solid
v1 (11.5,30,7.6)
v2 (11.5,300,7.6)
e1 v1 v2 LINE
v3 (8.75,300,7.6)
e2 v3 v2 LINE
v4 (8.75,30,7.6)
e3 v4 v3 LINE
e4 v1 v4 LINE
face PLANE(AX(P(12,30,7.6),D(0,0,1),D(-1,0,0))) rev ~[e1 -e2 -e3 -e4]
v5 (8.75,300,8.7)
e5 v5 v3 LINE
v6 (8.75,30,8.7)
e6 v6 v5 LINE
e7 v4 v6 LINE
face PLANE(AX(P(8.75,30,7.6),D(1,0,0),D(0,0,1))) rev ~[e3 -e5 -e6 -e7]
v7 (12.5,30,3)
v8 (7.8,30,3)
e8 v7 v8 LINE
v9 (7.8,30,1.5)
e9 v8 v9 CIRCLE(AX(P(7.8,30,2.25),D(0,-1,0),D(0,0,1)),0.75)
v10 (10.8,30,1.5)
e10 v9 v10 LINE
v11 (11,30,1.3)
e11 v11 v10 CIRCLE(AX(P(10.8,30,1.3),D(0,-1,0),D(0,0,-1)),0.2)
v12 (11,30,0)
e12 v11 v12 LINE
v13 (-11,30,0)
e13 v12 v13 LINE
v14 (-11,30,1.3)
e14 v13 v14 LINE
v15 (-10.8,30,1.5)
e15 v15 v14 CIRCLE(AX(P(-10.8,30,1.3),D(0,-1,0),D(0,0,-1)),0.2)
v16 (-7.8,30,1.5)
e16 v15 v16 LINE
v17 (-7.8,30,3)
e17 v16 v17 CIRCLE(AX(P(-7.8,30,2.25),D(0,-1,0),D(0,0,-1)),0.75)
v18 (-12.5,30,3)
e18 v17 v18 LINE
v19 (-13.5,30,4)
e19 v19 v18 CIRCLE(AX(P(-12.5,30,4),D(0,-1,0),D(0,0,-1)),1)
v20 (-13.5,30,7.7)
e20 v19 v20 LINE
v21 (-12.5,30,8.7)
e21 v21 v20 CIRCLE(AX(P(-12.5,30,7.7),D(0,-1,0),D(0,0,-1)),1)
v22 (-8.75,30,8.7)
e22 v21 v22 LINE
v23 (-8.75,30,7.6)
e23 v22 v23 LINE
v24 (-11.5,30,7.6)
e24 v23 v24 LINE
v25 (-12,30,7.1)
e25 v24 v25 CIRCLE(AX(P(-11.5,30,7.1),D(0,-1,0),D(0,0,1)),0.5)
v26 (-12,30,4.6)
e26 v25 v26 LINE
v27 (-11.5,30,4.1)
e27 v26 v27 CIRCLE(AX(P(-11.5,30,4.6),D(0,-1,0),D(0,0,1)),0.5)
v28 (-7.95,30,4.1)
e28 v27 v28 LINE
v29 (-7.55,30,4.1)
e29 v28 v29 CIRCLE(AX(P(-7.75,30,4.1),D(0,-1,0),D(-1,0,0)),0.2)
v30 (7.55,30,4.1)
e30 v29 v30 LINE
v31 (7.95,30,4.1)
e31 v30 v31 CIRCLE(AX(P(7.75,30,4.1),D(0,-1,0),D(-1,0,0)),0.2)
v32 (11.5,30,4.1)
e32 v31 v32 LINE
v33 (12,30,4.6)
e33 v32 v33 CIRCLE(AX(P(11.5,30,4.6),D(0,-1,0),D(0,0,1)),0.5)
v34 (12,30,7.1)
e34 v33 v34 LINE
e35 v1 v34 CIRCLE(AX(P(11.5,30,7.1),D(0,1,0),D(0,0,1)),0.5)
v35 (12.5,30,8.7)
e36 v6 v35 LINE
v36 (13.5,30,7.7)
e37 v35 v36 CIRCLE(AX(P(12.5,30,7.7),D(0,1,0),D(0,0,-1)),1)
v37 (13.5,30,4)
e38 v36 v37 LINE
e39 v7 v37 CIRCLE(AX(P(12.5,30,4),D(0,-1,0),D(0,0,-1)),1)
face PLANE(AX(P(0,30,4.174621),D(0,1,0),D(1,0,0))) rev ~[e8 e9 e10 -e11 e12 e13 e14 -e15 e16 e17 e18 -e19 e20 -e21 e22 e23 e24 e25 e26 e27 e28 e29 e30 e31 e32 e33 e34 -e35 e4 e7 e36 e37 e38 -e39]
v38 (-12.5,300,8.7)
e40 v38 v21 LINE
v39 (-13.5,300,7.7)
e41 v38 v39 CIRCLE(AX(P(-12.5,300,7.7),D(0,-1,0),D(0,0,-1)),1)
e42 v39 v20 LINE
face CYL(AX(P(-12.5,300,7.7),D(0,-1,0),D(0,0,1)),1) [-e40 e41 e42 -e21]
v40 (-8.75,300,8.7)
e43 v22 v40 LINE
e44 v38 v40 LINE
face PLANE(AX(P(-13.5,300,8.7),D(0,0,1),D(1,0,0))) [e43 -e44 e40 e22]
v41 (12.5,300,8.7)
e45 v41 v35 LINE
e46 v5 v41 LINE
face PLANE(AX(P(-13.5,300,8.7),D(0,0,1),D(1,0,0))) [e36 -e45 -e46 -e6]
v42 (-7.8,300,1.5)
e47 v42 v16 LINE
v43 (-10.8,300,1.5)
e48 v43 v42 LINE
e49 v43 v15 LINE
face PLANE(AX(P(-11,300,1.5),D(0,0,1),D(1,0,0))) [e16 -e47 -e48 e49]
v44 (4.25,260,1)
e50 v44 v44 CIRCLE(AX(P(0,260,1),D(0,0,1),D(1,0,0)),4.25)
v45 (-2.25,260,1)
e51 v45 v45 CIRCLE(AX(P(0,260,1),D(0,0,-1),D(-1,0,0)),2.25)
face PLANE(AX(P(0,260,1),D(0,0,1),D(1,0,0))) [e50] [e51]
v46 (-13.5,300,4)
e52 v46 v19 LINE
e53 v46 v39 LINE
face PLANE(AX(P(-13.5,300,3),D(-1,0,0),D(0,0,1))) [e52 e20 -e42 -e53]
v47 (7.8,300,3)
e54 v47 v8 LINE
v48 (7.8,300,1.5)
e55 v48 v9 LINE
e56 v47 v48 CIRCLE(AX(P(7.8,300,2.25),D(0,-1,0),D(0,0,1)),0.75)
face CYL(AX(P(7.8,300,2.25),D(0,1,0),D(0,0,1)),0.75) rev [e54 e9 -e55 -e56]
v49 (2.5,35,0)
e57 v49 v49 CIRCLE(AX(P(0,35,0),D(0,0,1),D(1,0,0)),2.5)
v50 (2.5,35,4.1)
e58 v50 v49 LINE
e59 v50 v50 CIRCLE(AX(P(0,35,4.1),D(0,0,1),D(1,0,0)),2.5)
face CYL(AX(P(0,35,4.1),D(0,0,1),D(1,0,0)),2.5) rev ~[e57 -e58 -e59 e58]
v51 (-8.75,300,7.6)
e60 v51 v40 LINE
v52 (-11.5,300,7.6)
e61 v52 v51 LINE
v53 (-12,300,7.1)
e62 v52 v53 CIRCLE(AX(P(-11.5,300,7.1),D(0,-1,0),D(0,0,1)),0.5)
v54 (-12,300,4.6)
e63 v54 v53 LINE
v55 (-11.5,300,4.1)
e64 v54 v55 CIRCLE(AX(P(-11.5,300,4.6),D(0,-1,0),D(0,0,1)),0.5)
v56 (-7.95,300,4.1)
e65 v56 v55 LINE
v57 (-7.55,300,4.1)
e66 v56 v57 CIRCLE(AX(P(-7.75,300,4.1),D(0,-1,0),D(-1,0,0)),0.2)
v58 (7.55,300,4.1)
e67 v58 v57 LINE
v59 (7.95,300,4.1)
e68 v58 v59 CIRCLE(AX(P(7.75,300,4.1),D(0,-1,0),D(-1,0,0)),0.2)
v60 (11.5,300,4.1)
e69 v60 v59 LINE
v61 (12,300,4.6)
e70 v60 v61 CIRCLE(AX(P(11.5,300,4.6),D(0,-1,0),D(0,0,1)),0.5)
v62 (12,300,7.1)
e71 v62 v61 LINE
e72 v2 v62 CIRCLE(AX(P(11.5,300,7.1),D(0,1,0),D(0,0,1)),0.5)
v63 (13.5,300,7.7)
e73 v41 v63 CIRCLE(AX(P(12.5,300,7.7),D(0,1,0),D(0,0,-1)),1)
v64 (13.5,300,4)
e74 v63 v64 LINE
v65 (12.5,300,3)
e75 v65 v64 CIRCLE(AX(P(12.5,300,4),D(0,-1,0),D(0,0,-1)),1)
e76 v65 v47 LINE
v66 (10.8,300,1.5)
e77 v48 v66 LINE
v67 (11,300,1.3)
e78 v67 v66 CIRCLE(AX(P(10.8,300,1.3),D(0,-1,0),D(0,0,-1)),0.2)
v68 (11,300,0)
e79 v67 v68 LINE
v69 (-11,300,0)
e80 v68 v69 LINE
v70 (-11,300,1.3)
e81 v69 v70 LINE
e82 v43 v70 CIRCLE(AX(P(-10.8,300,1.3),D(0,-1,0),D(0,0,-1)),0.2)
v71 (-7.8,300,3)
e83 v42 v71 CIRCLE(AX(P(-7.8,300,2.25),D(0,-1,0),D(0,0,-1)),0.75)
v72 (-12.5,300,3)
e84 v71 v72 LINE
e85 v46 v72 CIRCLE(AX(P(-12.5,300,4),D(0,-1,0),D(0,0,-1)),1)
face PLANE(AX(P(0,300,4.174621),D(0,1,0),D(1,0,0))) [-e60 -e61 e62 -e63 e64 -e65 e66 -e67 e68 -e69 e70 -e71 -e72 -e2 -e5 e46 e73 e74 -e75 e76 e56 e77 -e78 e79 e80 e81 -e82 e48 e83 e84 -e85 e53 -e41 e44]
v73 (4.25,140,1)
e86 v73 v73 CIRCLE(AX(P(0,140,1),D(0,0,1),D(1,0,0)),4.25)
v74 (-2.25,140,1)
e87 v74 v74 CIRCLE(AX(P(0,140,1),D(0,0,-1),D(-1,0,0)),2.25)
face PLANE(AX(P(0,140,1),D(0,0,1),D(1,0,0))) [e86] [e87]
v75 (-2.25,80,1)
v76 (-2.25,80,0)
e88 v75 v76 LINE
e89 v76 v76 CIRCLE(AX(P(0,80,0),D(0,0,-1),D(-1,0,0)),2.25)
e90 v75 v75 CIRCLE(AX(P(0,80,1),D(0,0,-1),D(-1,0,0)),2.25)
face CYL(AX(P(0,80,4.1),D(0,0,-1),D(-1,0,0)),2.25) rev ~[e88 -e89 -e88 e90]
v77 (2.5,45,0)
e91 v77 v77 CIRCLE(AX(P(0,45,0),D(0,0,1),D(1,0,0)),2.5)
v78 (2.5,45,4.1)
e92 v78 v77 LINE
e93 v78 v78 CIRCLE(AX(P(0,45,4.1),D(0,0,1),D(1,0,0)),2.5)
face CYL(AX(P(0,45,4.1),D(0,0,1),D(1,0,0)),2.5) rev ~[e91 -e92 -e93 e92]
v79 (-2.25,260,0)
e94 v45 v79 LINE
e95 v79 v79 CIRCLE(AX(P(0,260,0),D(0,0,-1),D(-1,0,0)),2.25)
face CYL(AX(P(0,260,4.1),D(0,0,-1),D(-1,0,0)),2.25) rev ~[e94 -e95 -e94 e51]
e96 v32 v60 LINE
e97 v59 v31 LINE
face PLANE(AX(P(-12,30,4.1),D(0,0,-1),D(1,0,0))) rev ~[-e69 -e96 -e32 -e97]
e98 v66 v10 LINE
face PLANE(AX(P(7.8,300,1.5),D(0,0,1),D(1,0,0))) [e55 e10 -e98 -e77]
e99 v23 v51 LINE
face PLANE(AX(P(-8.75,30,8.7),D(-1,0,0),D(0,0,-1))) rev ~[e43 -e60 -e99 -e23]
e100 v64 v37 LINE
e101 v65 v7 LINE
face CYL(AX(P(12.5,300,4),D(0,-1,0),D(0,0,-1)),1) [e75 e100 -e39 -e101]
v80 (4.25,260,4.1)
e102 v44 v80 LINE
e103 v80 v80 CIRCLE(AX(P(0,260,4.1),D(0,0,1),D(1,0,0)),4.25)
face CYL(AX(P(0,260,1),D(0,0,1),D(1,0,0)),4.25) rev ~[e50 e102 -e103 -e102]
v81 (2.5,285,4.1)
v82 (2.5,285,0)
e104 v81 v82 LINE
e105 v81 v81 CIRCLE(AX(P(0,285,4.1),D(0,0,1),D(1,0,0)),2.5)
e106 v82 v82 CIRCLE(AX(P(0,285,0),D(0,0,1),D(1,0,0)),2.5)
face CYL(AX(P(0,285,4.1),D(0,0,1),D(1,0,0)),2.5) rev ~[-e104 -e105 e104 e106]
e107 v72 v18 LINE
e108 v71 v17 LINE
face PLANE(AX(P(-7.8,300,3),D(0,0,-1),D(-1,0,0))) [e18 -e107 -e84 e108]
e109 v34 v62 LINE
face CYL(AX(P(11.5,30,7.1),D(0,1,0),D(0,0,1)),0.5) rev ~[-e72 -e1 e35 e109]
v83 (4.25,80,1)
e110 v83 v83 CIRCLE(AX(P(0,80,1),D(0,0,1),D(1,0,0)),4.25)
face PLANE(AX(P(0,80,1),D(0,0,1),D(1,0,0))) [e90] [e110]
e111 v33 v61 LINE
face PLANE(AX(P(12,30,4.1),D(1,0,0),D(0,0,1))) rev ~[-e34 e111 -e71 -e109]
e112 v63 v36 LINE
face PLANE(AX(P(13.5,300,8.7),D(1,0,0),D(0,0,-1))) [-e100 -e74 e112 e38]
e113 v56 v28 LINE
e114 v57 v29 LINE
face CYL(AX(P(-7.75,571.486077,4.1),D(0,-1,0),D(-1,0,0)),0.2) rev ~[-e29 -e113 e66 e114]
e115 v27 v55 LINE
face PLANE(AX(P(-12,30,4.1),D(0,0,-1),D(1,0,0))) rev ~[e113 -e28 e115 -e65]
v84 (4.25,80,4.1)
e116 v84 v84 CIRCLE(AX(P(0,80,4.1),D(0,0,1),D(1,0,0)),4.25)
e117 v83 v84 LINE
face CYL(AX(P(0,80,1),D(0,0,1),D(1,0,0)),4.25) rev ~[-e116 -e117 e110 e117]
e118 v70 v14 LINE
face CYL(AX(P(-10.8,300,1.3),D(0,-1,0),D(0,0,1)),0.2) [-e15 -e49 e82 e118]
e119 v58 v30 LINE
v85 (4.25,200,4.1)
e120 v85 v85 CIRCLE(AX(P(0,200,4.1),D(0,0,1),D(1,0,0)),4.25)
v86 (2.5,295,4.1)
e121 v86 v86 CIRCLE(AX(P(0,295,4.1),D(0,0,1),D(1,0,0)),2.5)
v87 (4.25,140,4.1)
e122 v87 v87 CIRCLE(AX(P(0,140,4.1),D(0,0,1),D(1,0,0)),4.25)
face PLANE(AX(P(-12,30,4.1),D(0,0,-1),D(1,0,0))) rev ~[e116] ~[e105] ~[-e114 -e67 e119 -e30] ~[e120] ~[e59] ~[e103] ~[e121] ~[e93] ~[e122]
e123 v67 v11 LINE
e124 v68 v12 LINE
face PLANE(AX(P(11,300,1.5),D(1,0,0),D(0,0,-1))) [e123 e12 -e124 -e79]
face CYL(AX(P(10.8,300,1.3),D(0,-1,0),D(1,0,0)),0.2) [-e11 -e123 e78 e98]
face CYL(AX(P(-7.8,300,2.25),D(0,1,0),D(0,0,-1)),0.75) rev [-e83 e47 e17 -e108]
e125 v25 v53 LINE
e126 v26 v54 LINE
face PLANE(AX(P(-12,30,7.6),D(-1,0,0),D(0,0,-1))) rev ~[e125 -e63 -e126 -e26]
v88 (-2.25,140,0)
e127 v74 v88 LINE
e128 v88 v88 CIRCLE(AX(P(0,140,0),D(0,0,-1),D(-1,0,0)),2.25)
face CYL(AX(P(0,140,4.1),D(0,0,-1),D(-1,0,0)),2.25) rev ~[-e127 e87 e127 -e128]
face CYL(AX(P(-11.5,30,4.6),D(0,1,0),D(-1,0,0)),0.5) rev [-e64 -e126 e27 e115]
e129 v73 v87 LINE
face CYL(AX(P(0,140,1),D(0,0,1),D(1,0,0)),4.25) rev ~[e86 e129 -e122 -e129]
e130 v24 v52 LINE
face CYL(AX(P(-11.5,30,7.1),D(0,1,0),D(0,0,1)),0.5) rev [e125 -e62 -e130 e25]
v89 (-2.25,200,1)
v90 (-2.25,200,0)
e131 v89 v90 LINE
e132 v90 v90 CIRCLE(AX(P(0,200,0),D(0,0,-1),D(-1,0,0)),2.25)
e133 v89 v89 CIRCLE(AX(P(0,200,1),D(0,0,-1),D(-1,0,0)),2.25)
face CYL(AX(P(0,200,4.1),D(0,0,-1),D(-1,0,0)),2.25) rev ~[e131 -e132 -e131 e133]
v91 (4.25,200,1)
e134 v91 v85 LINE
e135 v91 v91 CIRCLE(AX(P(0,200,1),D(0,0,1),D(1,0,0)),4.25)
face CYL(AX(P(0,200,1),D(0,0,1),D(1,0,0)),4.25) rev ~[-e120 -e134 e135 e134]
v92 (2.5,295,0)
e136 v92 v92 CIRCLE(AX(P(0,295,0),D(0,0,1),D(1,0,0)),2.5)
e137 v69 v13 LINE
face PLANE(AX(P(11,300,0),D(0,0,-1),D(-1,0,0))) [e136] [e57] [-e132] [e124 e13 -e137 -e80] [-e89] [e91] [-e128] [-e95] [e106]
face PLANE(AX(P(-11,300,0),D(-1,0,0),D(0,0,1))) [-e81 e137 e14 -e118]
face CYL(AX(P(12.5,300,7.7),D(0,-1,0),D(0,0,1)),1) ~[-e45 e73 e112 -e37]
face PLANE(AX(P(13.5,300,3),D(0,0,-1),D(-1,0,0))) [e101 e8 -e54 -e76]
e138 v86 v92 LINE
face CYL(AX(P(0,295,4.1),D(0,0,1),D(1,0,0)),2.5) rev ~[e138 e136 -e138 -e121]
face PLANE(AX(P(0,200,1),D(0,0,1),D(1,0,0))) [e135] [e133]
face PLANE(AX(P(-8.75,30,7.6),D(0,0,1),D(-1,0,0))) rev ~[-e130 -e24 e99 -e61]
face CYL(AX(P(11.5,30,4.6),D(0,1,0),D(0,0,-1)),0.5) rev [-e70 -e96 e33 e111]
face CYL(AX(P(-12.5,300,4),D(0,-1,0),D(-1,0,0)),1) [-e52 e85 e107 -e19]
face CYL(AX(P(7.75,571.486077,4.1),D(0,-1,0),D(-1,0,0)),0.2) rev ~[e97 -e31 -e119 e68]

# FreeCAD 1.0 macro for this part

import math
import FreeCAD as App
import Part
import Sketcher

V = App.Vector
Q = App.Units.Quantity


def edges_at(feature, points):
    """Names of the edges that pass closest to the given points."""
    edges = feature.Shape.Edges
    near = lambda p: min(range(len(edges)), key=lambda i: edges[i].distToShape(Part.Vertex(*p))[0])
    return sorted({f"Edge{near(p) + 1}" for p in points})

doc = App.newDocument("Part")
body = doc.addObject("PartDesign::Body", "Body")

sketch1 = body.newObject("Sketcher::SketchObject", "Sketch")
sketch1.AttachmentSupport = (doc.getObject("XZ_Plane"), [""])
sketch1.MapMode = "FlatFace"
sketch1.AttachmentOffset = App.Placement(V(0, 0, -300), App.Rotation())
sketch1.addGeometry([
    Part.LineSegment(V(-13.5, 3, 0), V(-13.5, 8.7, 0)),
    Part.LineSegment(V(-13.5, 8.7, 0), V(13.5, 8.7, 0)),
    Part.LineSegment(V(13.5, 8.7, 0), V(13.5, 3, 0)),
    Part.LineSegment(V(13.5, 3, 0), V(7.8, 3, 0)),
    Part.ArcOfCircle(Part.Circle(V(7.8, 2.2, 0), V(0, 0, 1), 0.8), math.radians(90), math.radians(270)),
    Part.LineSegment(V(7.8, 1.5, 0), V(11, 1.5, 0)),
    Part.LineSegment(V(11, 1.5, 0), V(11, 0, 0)),
    Part.LineSegment(V(11, 0, 0), V(-11, 0, 0)),
    Part.LineSegment(V(-11, 0, 0), V(-11, 1.5, 0)),
    Part.LineSegment(V(-11, 1.5, 0), V(-7.8, 1.5, 0)),
    Part.ArcOfCircle(Part.Circle(V(-7.8, 2.2, 0), V(0, 0, 1), 0.8), math.radians(-90), math.radians(90)),
    Part.LineSegment(V(-7.8, 3, 0), V(-13.5, 3, 0)),
], False)
sketch1.addConstraint([
    Sketcher.Constraint("Coincident", 0, 2, 1, 1),
    Sketcher.Constraint("Coincident", 1, 2, 2, 1),
    Sketcher.Constraint("Coincident", 2, 2, 3, 1),
    Sketcher.Constraint("Tangent", 3, 2, 4, 1),
    Sketcher.Constraint("Tangent", 4, 2, 5, 1),
    Sketcher.Constraint("Coincident", 5, 2, 6, 1),
    Sketcher.Constraint("Coincident", 6, 2, 7, 1),
    Sketcher.Constraint("Coincident", 7, 2, 8, 1),
    Sketcher.Constraint("Coincident", 8, 2, 9, 1),
    Sketcher.Constraint("Tangent", 9, 2, 10, 1),
    Sketcher.Constraint("Tangent", 10, 2, 11, 1),
    Sketcher.Constraint("Coincident", 11, 2, 0, 1),
    Sketcher.Constraint("Vertical", 0),
    Sketcher.Constraint("Horizontal", 1),
    Sketcher.Constraint("Vertical", 2),
    Sketcher.Constraint("Horizontal", 3),
    Sketcher.Constraint("Horizontal", 5),
    Sketcher.Constraint("Vertical", 6),
    Sketcher.Constraint("Horizontal", 7),
    Sketcher.Constraint("Vertical", 8),
    Sketcher.Constraint("Horizontal", 9),
    Sketcher.Constraint("Horizontal", 11),
    Sketcher.Constraint("Equal", 4, 10),
    Sketcher.Constraint("Symmetric", 6, 2, 7, 2, -1, 1),
    Sketcher.Constraint("Symmetric", 4, 3, 10, 3, -2),
    Sketcher.Constraint("Equal", 3, 11),
    Sketcher.Constraint("Equal", 11, 0),
    Sketcher.Constraint("DistanceX", 1, 1, 1, 2, Q("27 mm")),
    Sketcher.Constraint("DistanceX", 7, 2, 7, 1, Q("22 mm")),
    Sketcher.Constraint("Radius", 4, Q("0.75 mm")),
    Sketcher.Constraint("DistanceX", 3, 2, 3, 1, Q("5.7 mm")),
    Sketcher.Constraint("DistanceY", 6, 2, 6, 1, Q("1.5 mm")),
])
pad1 = body.newObject("PartDesign::Pad", "Pad")
pad1.Profile = sketch1
pad1.Length = 270

sketch2 = body.newObject("Sketcher::SketchObject", "Sketch001")
sketch2.AttachmentSupport = (doc.getObject("XZ_Plane"), [""])
sketch2.MapMode = "FlatFace"
sketch2.AttachmentOffset = App.Placement(V(0, 0, -30), App.Rotation())
sketch2.addGeometry([
    Part.LineSegment(V(8.8, 8.7, 0), V(-8.8, 8.7, 0)),
    Part.LineSegment(V(-8.8, 8.7, 0), V(-8.8, 7.6, 0)),
    Part.LineSegment(V(-8.8, 7.6, 0), V(-12, 7.6, 0)),
    Part.LineSegment(V(-12, 7.6, 0), V(-12, 4.1, 0)),
    Part.LineSegment(V(-12, 4.1, 0), V(12, 4.1, 0)),
    Part.LineSegment(V(12, 4.1, 0), V(12, 7.6, 0)),
    Part.LineSegment(V(12, 7.6, 0), V(8.8, 7.6, 0)),
    Part.LineSegment(V(8.8, 7.6, 0), V(8.8, 8.7, 0)),
], False)
sketch2.addConstraint([
    Sketcher.Constraint("Coincident", 0, 2, 1, 1),
    Sketcher.Constraint("Coincident", 1, 2, 2, 1),
    Sketcher.Constraint("Coincident", 2, 2, 3, 1),
    Sketcher.Constraint("Coincident", 3, 2, 4, 1),
    Sketcher.Constraint("Coincident", 4, 2, 5, 1),
    Sketcher.Constraint("Coincident", 5, 2, 6, 1),
    Sketcher.Constraint("Coincident", 6, 2, 7, 1),
    Sketcher.Constraint("Coincident", 7, 2, 0, 1),
    Sketcher.Constraint("Horizontal", 0),
    Sketcher.Constraint("Vertical", 1),
    Sketcher.Constraint("Horizontal", 2),
    Sketcher.Constraint("Vertical", 3),
    Sketcher.Constraint("Horizontal", 4),
    Sketcher.Constraint("Vertical", 5),
    Sketcher.Constraint("Horizontal", 6),
    Sketcher.Constraint("Vertical", 7),
    Sketcher.Constraint("Symmetric", 2, 2, 5, 2, -2),
    Sketcher.Constraint("Equal", 2, 6),
    Sketcher.Constraint("DistanceX", 4, 1, 4, 2, Q("24 mm")),
    Sketcher.Constraint("DistanceX", 0, 2, 0, 1, Q("17.5 mm")),
    Sketcher.Constraint("DistanceY", 1, 2, 1, 1, Q("1.1 mm")),
    Sketcher.Constraint("DistanceY", 3, 2, 3, 1, Q("3.5 mm")),
    Sketcher.Constraint("DistanceY", -1, 1, 0, 2, Q("8.7 mm")),
])
pocket1 = body.newObject("PartDesign::Pocket", "Pocket")
pocket1.Profile = sketch2
pocket1.Type = "ThroughAll"

sketch3 = body.newObject("Sketcher::SketchObject", "Sketch002")
sketch3.AttachmentSupport = (doc.getObject("XZ_Plane"), [""])
sketch3.MapMode = "FlatFace"
sketch3.AttachmentOffset = App.Placement(V(0, 0, -300), App.Rotation())
sketch3.addGeometry([
    Part.Circle(V(-7.75, 4.1, 0), V(0, 0, 1), 0.2),
    Part.Circle(V(7.75, 4.1, 0), V(0, 0, 1), 0.2),
], False)
sketch3.addConstraint([
    Sketcher.Constraint("Equal", 0, 1),
    Sketcher.Constraint("Symmetric", 0, 3, 1, 3, -2),
    Sketcher.Constraint("Diameter", 0, Q("0.4 mm")),
    Sketcher.Constraint("DistanceY", -1, 1, 0, 3, Q("4.1 mm")),
    Sketcher.Constraint("DistanceX", 0, 3, 1, 3, Q("15.5 mm")),
])
doc.recompute()
hole = body.newObject("PartDesign::Hole", "Hole")
hole.Profile = sketch3
hole.ThreadType = "None"
hole.Diameter = 0.4
hole.DepthType = "ThroughAll"
hole.Reversed = True

sketch4 = body.newObject("Sketcher::SketchObject", "Sketch003")
sketch4.AttachmentSupport = (doc.getObject("XY_Plane"), [""])
sketch4.MapMode = "FlatFace"
sketch4.AttachmentOffset = App.Placement(V(0, 0, 4.1), App.Rotation())
sketch4.addGeometry([
    Part.Circle(V(0, 260, 0), V(0, 0, 1), 2.2),
    Part.Circle(V(0, 200, 0), V(0, 0, 1), 2.2),
    Part.Circle(V(0, 140, 0), V(0, 0, 1), 2.2),
    Part.Circle(V(0, 80, 0), V(0, 0, 1), 2.2),
    Part.Circle(V(0, 20, 0), V(0, 0, 1), 2.2),
], False)
sketch4.addConstraint([
    Sketcher.Constraint("Equal", 0, 1),
    Sketcher.Constraint("Equal", 1, 2),
    Sketcher.Constraint("Equal", 2, 3),
    Sketcher.Constraint("Equal", 3, 4),
    Sketcher.Constraint("PointOnObject", 0, 3, -2),
    Sketcher.Constraint("PointOnObject", 1, 3, -2),
    Sketcher.Constraint("PointOnObject", 2, 3, -2),
    Sketcher.Constraint("PointOnObject", 3, 3, -2),
    Sketcher.Constraint("PointOnObject", 4, 3, -2),
    Sketcher.Constraint("Diameter", 0, Q("4.5 mm")),
    Sketcher.Constraint("DistanceY", -1, 1, 0, 3, Q("260 mm")),
    Sketcher.Constraint("DistanceY", -1, 1, 1, 3, Q("200 mm")),
    Sketcher.Constraint("DistanceY", -1, 1, 2, 3, Q("140 mm")),
    Sketcher.Constraint("DistanceY", -1, 1, 3, 3, Q("80 mm")),
    Sketcher.Constraint("DistanceY", -1, 1, 4, 3, Q("20 mm")),
])
doc.recompute()
hole2 = body.newObject("PartDesign::Hole", "Hole001")
hole2.Profile = sketch4
hole2.ThreadType = "None"
hole2.Diameter = 4.5
hole2.DepthType = "Dimension"
hole2.Depth = 4.1
hole2.DrillPoint = "Flat"
hole2.HoleCutType = "Counterbore"
hole2.HoleCutDiameter = 8.5
hole2.HoleCutDepth = 3.1
doc.recompute()

fillet = body.newObject("PartDesign::Fillet", "Fillet")
fillet.Base = (hole2, edges_at(hole2, [(-11, 165, 1.5), (11, 165, 1.5)]))
fillet.Radius = 0.2
doc.recompute()

fillet2 = body.newObject("PartDesign::Fillet", "Fillet001")
fillet2.Base = (fillet, edges_at(fillet, [
    (12, 165, 7.6),
    (12, 165, 4.1),
    (-12, 165, 4.1),
    (-12, 165, 7.6),
]))
fillet2.Radius = 0.5
doc.recompute()

fillet3 = body.newObject("PartDesign::Fillet", "Fillet002")
fillet3.Base = (fillet2, edges_at(fillet2, [
    (13.5, 165, 3),
    (13.5, 165, 8.7),
    (-13.5, 165, 8.7),
    (-13.5, 165, 3),
]))
fillet3.Radius = 1

sketch5 = body.newObject("Sketcher::SketchObject", "Sketch004")
sketch5.AttachmentSupport = (doc.getObject("XY_Plane"), [""])
sketch5.MapMode = "FlatFace"
sketch5.AttachmentOffset = App.Placement(V(0, 0, 4.1), App.Rotation())
sketch5.addGeometry(Part.Circle(V(0, 285, 0), V(0, 0, 1), 2.5), False)
sketch5.addConstraint([
    Sketcher.Constraint("PointOnObject", 0, 3, -2),
    Sketcher.Constraint("Diameter", 0, Q("5 mm")),
    Sketcher.Constraint("DistanceY", -1, 1, 0, 3, Q("285 mm")),
])
pocket2 = body.newObject("PartDesign::Pocket", "Pocket001")
pocket2.Profile = sketch5
pocket2.Type = "UpToFirst"

sketch6 = body.newObject("Sketcher::SketchObject", "Sketch005")
sketch6.AttachmentSupport = (doc.getObject("XY_Plane"), [""])
sketch6.MapMode = "FlatFace"
sketch6.AttachmentOffset = App.Placement(V(0, 0, 4.1), App.Rotation())
sketch6.addGeometry(Part.Circle(V(0, 45, 0), V(0, 0, 1), 2.5), False)
sketch6.addConstraint([
    Sketcher.Constraint("PointOnObject", 0, 3, -2),
    Sketcher.Constraint("Diameter", 0, Q("5 mm")),
    Sketcher.Constraint("DistanceY", -1, 1, 0, 3, Q("45 mm")),
])
pocket3 = body.newObject("PartDesign::Pocket", "Pocket002")
pocket3.Profile = sketch6
pocket3.Type = "UpToFirst"

sketch7 = body.newObject("Sketcher::SketchObject", "Sketch006")
sketch7.AttachmentSupport = (doc.getObject("XY_Plane"), [""])
sketch7.MapMode = "FlatFace"
sketch7.AttachmentOffset = App.Placement(V(0, 0, 4.1), App.Rotation())
sketch7.addGeometry(Part.Circle(V(0, 35, 0), V(0, 0, 1), 2.5), False)
sketch7.addConstraint([
    Sketcher.Constraint("PointOnObject", 0, 3, -2),
    Sketcher.Constraint("Diameter", 0, Q("5 mm")),
    Sketcher.Constraint("DistanceY", -1, 1, 0, 3, Q("35 mm")),
])
pocket4 = body.newObject("PartDesign::Pocket", "Pocket003")
pocket4.Profile = sketch7
pocket4.Type = "UpToFirst"

sketch8 = body.newObject("Sketcher::SketchObject", "Sketch007")
sketch8.AttachmentSupport = (doc.getObject("XY_Plane"), [""])
sketch8.MapMode = "FlatFace"
sketch8.AttachmentOffset = App.Placement(V(0, 0, 4.1), App.Rotation())
sketch8.addGeometry(Part.Circle(V(0, 295, 0), V(0, 0, 1), 2.5), False)
sketch8.addConstraint([
    Sketcher.Constraint("PointOnObject", 0, 3, -2),
    Sketcher.Constraint("Diameter", 0, Q("5 mm")),
    Sketcher.Constraint("DistanceY", -1, 1, 0, 3, Q("295 mm")),
])
pocket5 = body.newObject("PartDesign::Pocket", "Pocket004")
pocket5.Profile = sketch8
pocket5.Type = "UpToFirst"

doc.recompute()
